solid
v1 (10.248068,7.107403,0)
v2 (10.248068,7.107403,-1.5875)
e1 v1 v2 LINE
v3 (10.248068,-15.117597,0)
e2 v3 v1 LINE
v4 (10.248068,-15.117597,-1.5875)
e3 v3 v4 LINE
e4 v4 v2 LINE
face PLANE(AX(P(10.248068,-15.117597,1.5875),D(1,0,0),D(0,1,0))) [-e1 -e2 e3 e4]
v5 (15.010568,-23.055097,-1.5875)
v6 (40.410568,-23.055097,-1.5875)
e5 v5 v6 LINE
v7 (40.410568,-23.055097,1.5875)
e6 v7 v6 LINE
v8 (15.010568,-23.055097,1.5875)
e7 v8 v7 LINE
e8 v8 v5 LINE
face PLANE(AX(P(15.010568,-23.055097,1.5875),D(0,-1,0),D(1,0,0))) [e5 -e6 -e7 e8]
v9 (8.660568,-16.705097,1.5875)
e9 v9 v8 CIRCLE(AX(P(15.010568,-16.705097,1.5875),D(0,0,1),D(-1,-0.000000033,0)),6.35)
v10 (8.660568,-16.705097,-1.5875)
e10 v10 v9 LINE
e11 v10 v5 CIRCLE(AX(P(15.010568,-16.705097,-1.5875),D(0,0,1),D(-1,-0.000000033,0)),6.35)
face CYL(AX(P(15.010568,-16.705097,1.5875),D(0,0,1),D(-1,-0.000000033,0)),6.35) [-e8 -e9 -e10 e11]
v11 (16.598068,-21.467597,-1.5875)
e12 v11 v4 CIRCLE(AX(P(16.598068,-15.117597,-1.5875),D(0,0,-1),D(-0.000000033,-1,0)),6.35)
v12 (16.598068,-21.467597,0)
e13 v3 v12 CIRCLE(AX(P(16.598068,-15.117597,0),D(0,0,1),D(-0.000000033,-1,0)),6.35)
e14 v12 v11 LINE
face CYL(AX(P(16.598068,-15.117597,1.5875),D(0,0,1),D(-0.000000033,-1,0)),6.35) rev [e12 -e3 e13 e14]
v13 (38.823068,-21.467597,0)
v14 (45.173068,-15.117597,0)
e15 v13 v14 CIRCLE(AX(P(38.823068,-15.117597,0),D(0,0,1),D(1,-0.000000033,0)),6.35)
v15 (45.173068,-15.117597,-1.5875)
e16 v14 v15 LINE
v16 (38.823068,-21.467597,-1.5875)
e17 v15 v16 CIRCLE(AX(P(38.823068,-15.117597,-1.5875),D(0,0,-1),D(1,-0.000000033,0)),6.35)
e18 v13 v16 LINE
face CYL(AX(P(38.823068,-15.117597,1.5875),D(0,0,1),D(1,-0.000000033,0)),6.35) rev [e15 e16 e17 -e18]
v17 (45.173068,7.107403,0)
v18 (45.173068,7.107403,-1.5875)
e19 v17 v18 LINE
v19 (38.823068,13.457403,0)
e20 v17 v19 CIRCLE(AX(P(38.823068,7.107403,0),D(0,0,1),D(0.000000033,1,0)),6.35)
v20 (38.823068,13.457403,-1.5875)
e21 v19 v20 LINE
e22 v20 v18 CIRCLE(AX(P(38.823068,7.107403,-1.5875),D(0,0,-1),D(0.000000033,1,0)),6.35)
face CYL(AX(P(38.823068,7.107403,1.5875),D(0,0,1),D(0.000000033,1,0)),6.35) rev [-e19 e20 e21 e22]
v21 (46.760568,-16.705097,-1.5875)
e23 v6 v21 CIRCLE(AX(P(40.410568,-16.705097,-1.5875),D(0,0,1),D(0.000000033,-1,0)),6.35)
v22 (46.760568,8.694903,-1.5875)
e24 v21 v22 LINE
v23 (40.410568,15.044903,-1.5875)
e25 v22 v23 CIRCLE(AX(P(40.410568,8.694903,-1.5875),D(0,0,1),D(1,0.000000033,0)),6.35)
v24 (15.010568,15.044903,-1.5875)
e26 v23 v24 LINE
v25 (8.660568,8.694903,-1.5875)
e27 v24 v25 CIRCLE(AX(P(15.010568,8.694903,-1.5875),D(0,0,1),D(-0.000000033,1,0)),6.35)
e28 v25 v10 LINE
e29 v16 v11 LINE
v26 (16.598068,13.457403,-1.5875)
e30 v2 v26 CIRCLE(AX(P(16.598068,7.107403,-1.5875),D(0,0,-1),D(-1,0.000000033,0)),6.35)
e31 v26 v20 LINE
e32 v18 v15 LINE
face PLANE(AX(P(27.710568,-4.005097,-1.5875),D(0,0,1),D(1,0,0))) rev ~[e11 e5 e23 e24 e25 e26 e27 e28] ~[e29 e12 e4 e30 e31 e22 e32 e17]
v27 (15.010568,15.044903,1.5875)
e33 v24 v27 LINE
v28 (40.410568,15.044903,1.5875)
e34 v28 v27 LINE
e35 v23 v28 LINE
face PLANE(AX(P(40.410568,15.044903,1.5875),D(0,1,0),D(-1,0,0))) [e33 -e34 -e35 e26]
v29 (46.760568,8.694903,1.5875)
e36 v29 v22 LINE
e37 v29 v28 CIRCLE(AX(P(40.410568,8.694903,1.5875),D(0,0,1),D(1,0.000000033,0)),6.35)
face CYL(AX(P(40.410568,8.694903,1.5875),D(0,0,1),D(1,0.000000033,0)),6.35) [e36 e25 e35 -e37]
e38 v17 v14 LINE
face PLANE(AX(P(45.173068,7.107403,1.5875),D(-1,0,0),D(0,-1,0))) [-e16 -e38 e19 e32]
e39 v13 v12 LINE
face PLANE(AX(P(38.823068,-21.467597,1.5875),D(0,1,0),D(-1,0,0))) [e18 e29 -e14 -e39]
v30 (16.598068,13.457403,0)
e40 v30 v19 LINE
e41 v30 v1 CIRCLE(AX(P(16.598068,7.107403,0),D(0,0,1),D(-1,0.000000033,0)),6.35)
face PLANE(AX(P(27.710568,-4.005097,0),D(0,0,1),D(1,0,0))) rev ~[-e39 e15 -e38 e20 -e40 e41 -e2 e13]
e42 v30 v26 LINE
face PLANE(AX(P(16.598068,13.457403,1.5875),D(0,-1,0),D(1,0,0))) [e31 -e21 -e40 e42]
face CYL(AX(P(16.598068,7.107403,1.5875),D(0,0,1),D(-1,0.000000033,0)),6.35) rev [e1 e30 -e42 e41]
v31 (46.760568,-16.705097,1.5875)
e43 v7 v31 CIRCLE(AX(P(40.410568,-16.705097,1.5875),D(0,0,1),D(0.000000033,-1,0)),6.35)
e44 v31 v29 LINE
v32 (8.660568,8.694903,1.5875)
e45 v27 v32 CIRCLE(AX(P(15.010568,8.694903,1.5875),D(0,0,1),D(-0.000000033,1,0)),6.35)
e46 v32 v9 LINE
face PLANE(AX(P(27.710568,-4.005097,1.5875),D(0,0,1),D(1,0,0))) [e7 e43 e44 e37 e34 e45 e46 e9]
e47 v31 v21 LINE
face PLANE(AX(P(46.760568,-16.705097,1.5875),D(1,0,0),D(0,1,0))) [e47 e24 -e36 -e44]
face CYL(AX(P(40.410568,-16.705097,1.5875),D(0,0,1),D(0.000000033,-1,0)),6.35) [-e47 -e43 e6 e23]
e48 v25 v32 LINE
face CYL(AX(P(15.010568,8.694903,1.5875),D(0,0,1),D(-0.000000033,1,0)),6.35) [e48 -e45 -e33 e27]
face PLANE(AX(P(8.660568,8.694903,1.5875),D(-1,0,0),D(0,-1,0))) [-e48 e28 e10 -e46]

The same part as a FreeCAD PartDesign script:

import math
import FreeCAD as App
import Part
import Sketcher
from FreeCAD import Vector
Q = App.Units.Quantity

doc = App.newDocument("Part")
params = doc.addObject("Spreadsheet::Sheet", "Params")
for row, (alias, value) in enumerate([
    ("sketch1_width", "1 in"),
    ("sketch1_radius", "0.25 in"),
    ("pad1_length", "0.0625 in"),
    ("sketch2_width", "1 in"),
    ("sketch2_radius", "0.25 in"),
    ("sketch2_width2", "0.875 in"),
    ("pad2_length", "0.125 in"),
], start=1):
    params.set(f"A{row}", alias)
    params.set(f"B{row}", "=" + value)
    params.setAlias(f"B{row}", alias)

body = doc.addObject("PartDesign::Body", "Body")

# Sketch on XY plane
sketch1 = doc.addObject("Sketcher::SketchObject", "Sketch")
body.addObject(sketch1)
sketch1.AttachmentSupport = (doc.XY_Plane, [""])
sketch1.MapMode = "FlatFace"
sketch1.addGeometry([
    Part.LineSegment(Vector(40.410568, 15.044903, 0), Vector(15.010568, 15.044903, 0)),  # 0
    Part.ArcOfCircle(Part.Circle(Vector(15.010568, 8.694903, 0), Vector(0, 0, 1), 6.35), math.radians(90.000002), math.radians(179.999998)),  # 1
    Part.LineSegment(Vector(8.660568, 8.694903, 0), Vector(8.660568, -16.705097, 0)),  # 2
    Part.ArcOfCircle(Part.Circle(Vector(15.010568, -16.705097, 0), Vector(0, 0, 1), 6.35), math.radians(-179.999998), math.radians(-90.000002)),  # 3
    Part.LineSegment(Vector(15.010568, -23.055097, 0), Vector(40.410568, -23.055097, 0)),  # 4
    Part.ArcOfCircle(Part.Circle(Vector(40.410568, -16.705097, 0), Vector(0, 0, 1), 6.35), math.radians(-89.999998), math.radians(-0.000002)),  # 5
    Part.LineSegment(Vector(46.760568, -16.705097, 0), Vector(46.760568, 8.694903, 0)),  # 6
    Part.ArcOfCircle(Part.Circle(Vector(40.410568, 8.694903, 0), Vector(0, 0, 1), 6.35), math.radians(0.000002), math.radians(89.999998)),  # 7
], False)
sketch1.addConstraint([
    Sketcher.Constraint("Tangent", 0, 2, 1, 1),
    Sketcher.Constraint("Tangent", 1, 2, 2, 1),
    Sketcher.Constraint("Tangent", 2, 2, 3, 1),
    Sketcher.Constraint("Tangent", 3, 2, 4, 1),
    Sketcher.Constraint("Tangent", 4, 2, 5, 1),
    Sketcher.Constraint("Tangent", 5, 2, 6, 1),
    Sketcher.Constraint("Tangent", 6, 2, 7, 1),
    Sketcher.Constraint("Tangent", 7, 2, 0, 1),
    Sketcher.Constraint("Horizontal", 0),
    Sketcher.Constraint("Vertical", 2),
    Sketcher.Constraint("Horizontal", 4),
    Sketcher.Constraint("Vertical", 6),
    Sketcher.Constraint("Equal", 1, 3),
    Sketcher.Constraint("Equal", 3, 5),
    Sketcher.Constraint("Equal", 5, 7),
    Sketcher.Constraint("Equal", 4, 2),
    Sketcher.Constraint("DistanceX", 0, 2, 0, 1, Q("1 in")),
    Sketcher.Constraint("Radius", 1, Q("0.25 in")),
    Sketcher.Constraint("DistanceX", -1, 1, 1, 3, Q("15.010568 mm")),
    Sketcher.Constraint("DistanceY", -1, 1, 1, 3, Q("8.694903 mm")),
])
sketch1.setExpression("Constraints[16]", "Params.sketch1_width")
sketch1.setExpression("Constraints[17]", "Params.sketch1_radius")
pad1 = doc.addObject("PartDesign::Pad", "Pad")
body.addObject(pad1)
pad1.Profile = sketch1
pad1.setExpression("Length", "Params.pad1_length")

# Sketch on XY plane
sketch2 = doc.addObject("Sketcher::SketchObject", "Sketch001")
body.addObject(sketch2)
sketch2.AttachmentSupport = (doc.XY_Plane, [""])
sketch2.MapMode = "FlatFace"
sketch2.AttachmentOffset = App.Placement(Vector(0, 0, 0.0625 * 25.4), App.Rotation())
sketch2.addGeometry([
    Part.ArcOfCircle(Part.Circle(Vector(40.410568, 8.694903, 0), Vector(0, 0, 1), 6.35), math.radians(0.000002), math.radians(89.999998)),  # 0
    Part.LineSegment(Vector(40.410568, 15.044903, 0), Vector(15.010568, 15.044903, 0)),  # 1
    Part.ArcOfCircle(Part.Circle(Vector(15.010568, 8.694903, 0), Vector(0, 0, 1), 6.35), math.radians(90.000002), math.radians(179.999998)),  # 2
    Part.LineSegment(Vector(8.660568, 8.694903, 0), Vector(8.660568, -16.705097, 0)),  # 3
    Part.ArcOfCircle(Part.Circle(Vector(15.010568, -16.705097, 0), Vector(0, 0, 1), 6.35), math.radians(-179.999998), math.radians(-90.000002)),  # 4
    Part.LineSegment(Vector(15.010568, -23.055097, 0), Vector(40.410568, -23.055097, 0)),  # 5
    Part.ArcOfCircle(Part.Circle(Vector(40.410568, -16.705097, 0), Vector(0, 0, 1), 6.35), math.radians(-89.999998), math.radians(-0.000002)),  # 6
    Part.LineSegment(Vector(46.760568, -16.705097, 0), Vector(46.760568, 8.694903, 0)),  # 7
    Part.LineSegment(Vector(10.248068, -15.117597, 0), Vector(10.248068, 7.107403, 0)),  # 8
    Part.ArcOfCircle(Part.Circle(Vector(16.598068, 7.107403, 0), Vector(0, 0, 1), 6.35), math.radians(90.000002), math.radians(179.999998)),  # 9
    Part.LineSegment(Vector(16.598068, 13.457403, 0), Vector(38.823068, 13.457403, 0)),  # 10
    Part.ArcOfCircle(Part.Circle(Vector(38.823068, 7.107403, 0), Vector(0, 0, 1), 6.35), math.radians(0.000002), math.radians(89.999998)),  # 11
    Part.LineSegment(Vector(45.173068, 7.107403, 0), Vector(45.173068, -15.117597, 0)),  # 12
    Part.ArcOfCircle(Part.Circle(Vector(38.823068, -15.117597, 0), Vector(0, 0, 1), 6.35), math.radians(-89.999998), math.radians(-0.000002)),  # 13
    Part.LineSegment(Vector(38.823068, -21.467597, 0), Vector(16.598068, -21.467597, 0)),  # 14
    Part.ArcOfCircle(Part.Circle(Vector(16.598068, -15.117597, 0), Vector(0, 0, 1), 6.35), math.radians(-179.999998), math.radians(-90.000002)),  # 15
], False)
sketch2.addConstraint([
    Sketcher.Constraint("Tangent", 0, 2, 1, 1),
    Sketcher.Constraint("Tangent", 1, 2, 2, 1),
    Sketcher.Constraint("Tangent", 2, 2, 3, 1),
    Sketcher.Constraint("Tangent", 3, 2, 4, 1),
    Sketcher.Constraint("Tangent", 4, 2, 5, 1),
    Sketcher.Constraint("Tangent", 5, 2, 6, 1),
    Sketcher.Constraint("Tangent", 6, 2, 7, 1),
    Sketcher.Constraint("Tangent", 7, 2, 0, 1),
    Sketcher.Constraint("Tangent", 8, 2, 9, 2),
    Sketcher.Constraint("Tangent", 9, 1, 10, 1),
    Sketcher.Constraint("Tangent", 10, 2, 11, 2),
    Sketcher.Constraint("Tangent", 11, 1, 12, 1),
    Sketcher.Constraint("Tangent", 12, 2, 13, 2),
    Sketcher.Constraint("Tangent", 13, 1, 14, 1),
    Sketcher.Constraint("Tangent", 14, 2, 15, 2),
    Sketcher.Constraint("Tangent", 15, 1, 8, 1),
    Sketcher.Constraint("Horizontal", 1),
    Sketcher.Constraint("Vertical", 3),
    Sketcher.Constraint("Horizontal", 5),
    Sketcher.Constraint("Vertical", 7),
    Sketcher.Constraint("Vertical", 8),
    Sketcher.Constraint("Horizontal", 10),
    Sketcher.Constraint("Vertical", 12),
    Sketcher.Constraint("Horizontal", 14),
    Sketcher.Constraint("Equal", 0, 2),
    Sketcher.Constraint("Equal", 2, 4),
    Sketcher.Constraint("Equal", 4, 6),
    Sketcher.Constraint("Equal", 6, 9),
    Sketcher.Constraint("Equal", 9, 11),
    Sketcher.Constraint("Equal", 11, 13),
    Sketcher.Constraint("Equal", 13, 15),
    Sketcher.Constraint("Equal", 5, 3),
    Sketcher.Constraint("Equal", 14, 8),
    Sketcher.Constraint("DistanceX", 1, 2, 1, 1, Q("1 in")),
    Sketcher.Constraint("Radius", 0, Q("0.25 in")),
    Sketcher.Constraint("DistanceX", 10, 1, 10, 2, Q("0.875 in")),
    Sketcher.Constraint("DistanceX", 2, 3, 9, 3, Q("0.0625 in")),
    Sketcher.Constraint("DistanceY", 9, 3, 2, 3, Q("0.0625 in")),
    Sketcher.Constraint("DistanceX", -1, 1, 2, 3, Q("15.010568 mm")),
    Sketcher.Constraint("DistanceY", -1, 1, 0, 3, Q("8.694903 mm")),
])
sketch2.setExpression("Constraints[33]", "Params.sketch2_width")
sketch2.setExpression("Constraints[34]", "Params.sketch2_radius")
sketch2.setExpression("Constraints[35]", "Params.sketch2_width2")
pad2 = doc.addObject("PartDesign::Pad", "Pad001")
body.addObject(pad2)
pad2.Profile = sketch2
pad2.setExpression("Length", "Params.pad2_length")
pad2.Reversed = True

doc.recompute()
